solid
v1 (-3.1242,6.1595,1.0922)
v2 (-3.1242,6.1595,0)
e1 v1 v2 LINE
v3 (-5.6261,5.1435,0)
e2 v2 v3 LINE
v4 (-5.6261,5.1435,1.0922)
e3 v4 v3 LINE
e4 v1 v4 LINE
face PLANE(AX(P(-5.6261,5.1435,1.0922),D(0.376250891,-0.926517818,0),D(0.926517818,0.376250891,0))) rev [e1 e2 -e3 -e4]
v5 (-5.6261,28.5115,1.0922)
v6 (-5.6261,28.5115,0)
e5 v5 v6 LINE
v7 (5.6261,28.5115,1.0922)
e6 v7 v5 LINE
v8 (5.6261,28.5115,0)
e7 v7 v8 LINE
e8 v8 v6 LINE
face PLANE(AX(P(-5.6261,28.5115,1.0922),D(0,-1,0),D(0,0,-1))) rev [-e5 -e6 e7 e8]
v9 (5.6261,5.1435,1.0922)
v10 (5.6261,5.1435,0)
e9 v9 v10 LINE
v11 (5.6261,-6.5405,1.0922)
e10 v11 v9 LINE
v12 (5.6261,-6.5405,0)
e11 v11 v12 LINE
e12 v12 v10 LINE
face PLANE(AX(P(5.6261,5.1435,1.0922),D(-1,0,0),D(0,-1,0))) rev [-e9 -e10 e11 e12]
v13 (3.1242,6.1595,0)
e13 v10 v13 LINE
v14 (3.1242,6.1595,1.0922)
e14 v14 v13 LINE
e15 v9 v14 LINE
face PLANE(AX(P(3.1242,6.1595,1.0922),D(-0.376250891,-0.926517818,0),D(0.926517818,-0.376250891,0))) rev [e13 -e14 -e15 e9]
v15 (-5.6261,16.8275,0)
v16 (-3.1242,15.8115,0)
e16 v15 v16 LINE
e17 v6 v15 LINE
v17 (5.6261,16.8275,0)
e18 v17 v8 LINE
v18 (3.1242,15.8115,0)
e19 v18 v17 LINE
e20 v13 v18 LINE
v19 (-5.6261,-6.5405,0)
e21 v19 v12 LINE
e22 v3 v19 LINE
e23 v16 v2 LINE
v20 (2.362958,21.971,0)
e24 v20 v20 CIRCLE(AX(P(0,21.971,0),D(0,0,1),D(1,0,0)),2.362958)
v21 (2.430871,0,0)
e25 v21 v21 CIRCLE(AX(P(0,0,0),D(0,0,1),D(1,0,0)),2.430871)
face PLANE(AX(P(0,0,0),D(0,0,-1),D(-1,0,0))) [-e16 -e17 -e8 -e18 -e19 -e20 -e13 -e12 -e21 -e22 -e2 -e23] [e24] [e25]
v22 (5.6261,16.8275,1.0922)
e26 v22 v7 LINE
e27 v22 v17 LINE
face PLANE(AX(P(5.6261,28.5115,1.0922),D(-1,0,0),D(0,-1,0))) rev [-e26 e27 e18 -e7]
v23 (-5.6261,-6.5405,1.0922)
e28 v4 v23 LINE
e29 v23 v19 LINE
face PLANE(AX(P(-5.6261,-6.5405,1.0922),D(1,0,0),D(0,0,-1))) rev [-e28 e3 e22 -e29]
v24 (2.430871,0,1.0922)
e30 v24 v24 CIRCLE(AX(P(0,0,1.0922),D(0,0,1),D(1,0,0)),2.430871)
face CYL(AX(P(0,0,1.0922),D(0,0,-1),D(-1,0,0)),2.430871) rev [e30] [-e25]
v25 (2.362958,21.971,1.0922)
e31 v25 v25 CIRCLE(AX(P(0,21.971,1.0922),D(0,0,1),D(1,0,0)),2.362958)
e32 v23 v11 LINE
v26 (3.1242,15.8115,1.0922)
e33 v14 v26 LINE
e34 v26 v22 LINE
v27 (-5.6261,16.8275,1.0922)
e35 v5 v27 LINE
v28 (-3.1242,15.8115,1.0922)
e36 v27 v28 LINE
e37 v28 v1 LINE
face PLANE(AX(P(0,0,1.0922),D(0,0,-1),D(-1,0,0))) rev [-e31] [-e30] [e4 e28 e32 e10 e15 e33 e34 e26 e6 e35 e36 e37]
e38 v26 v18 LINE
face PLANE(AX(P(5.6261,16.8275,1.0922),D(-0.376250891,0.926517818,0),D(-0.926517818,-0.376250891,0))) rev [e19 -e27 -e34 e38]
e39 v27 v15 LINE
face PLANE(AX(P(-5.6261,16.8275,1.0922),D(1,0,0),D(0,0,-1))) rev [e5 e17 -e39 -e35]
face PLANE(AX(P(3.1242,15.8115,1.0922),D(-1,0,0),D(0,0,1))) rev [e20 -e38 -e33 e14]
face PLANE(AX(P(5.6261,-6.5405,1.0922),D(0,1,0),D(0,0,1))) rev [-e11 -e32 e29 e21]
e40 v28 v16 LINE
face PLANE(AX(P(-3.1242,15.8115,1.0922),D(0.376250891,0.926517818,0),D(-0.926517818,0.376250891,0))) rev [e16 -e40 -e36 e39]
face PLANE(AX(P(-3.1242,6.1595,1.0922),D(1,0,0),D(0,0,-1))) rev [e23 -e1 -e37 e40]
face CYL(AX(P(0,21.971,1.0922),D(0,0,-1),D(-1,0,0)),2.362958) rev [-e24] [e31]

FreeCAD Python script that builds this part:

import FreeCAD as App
import Part
import Sketcher

V = App.Vector
Q = App.Units.Quantity


def add_polygon(sketch, points):
    """Adds a closed chain of lines whose ends are joined by coincident constraints."""
    first, n = sketch.GeometryCount, len(points)
    for a, b in zip(points, points[1:] + points[:1]):
        sketch.addGeometry(Part.LineSegment(App.Vector(*a, 0), App.Vector(*b, 0)), False)
    for i in range(n):
        sketch.addConstraint(Sketcher.Constraint("Coincident", first + i, 2, first + (i + 1) % n, 1))

doc = App.newDocument("Part")
body = doc.addObject("PartDesign::Body", "Body")

# Sketch on XY plane
sketch1 = body.newObject("Sketcher::SketchObject", "Sketch")
sketch1.AttachmentSupport = (doc.getObject("XY_Plane"), [""])
sketch1.MapMode = "FlatFace"
add_polygon(sketch1, [(5.6261, 28.5115), (-5.6261, 28.5115), (-5.6261, 16.8275), (-3.1242, 15.8115), (-3.1242, 6.1595), (-5.6261, 5.1435), (-5.6261, -6.5405), (5.6261, -6.5405), (5.6261, 5.1435), (3.1242, 6.1595), (3.1242, 15.8115), (5.6261, 16.8275)])  # lines 0-11
sketch1.addGeometry(Part.Circle(V(0, 0, 0), V(0, 0, 1), 2.430871), False)  # 12
sketch1.addGeometry(Part.Circle(V(0, 21.971, 0), V(0, 0, 1), 2.362958), False)  # 13
sketch1.addConstraint(Sketcher.Constraint("Horizontal", 0))
sketch1.addConstraint(Sketcher.Constraint("Vertical", 1))
sketch1.addConstraint(Sketcher.Constraint("Vertical", 3))
sketch1.addConstraint(Sketcher.Constraint("Vertical", 5))
sketch1.addConstraint(Sketcher.Constraint("Horizontal", 6))
sketch1.addConstraint(Sketcher.Constraint("Vertical", 7))
sketch1.addConstraint(Sketcher.Constraint("Vertical", 9))
sketch1.addConstraint(Sketcher.Constraint("Vertical", 11))
sketch1.addConstraint(Sketcher.Constraint("Coincident", 12, 3, -1, 1))
sketch1.addConstraint(Sketcher.Constraint("Symmetric", 4, 2, 7, 2, -2))
sketch1.addConstraint(Sketcher.Constraint("Symmetric", 3, 2, 8, 2, -2))
sketch1.addConstraint(Sketcher.Constraint("Symmetric", 1, 2, 10, 2, -2))
sketch1.addConstraint(Sketcher.Constraint("PointOnObject", 13, 3, -2))
sketch1.addConstraint(Sketcher.Constraint("Parallel", 2, 8))
sketch1.addConstraint(Sketcher.Constraint("Parallel", 4, 10))
sketch1.addConstraint(Sketcher.Constraint("Vertical", 1, 2, 4, 2))
sketch1.addConstraint(Sketcher.Constraint("Equal", 1, 5))
sketch1.addConstraint(Sketcher.Constraint("DistanceY", 1, 2, 1, 1, Q("0.46 in")))
sketch1.addConstraint(Sketcher.Constraint("DistanceY", 3, 2, 3, 1, Q("0.38 in")))
sketch1.addConstraint(Sketcher.Constraint("DistanceY", 2, 2, 0, 2, Q("0.5 in")))
sketch1.addConstraint(Sketcher.Constraint("DistanceX", 0, 2, 0, 1, Q("0.443 in")))
sketch1.addConstraint(Sketcher.Constraint("Diameter", 12, 4.861741))
sketch1.addConstraint(Sketcher.Constraint("DistanceY", -1, 1, 13, 3, Q("0.865 in")))
sketch1.addConstraint(Sketcher.Constraint("DistanceX", 2, 2, -1, 1, Q("0.123 in")))
sketch1.addConstraint(Sketcher.Constraint("Diameter", 13, 4.725917))
sketch1.addConstraint(Sketcher.Constraint("DistanceY", -1, 1, 0, 2, Q("1.1225 in")))
pad1 = body.newObject("PartDesign::Pad", "Pad")
pad1.Profile = sketch1
pad1.Length = Q("0.043 in")

doc.recompute()
